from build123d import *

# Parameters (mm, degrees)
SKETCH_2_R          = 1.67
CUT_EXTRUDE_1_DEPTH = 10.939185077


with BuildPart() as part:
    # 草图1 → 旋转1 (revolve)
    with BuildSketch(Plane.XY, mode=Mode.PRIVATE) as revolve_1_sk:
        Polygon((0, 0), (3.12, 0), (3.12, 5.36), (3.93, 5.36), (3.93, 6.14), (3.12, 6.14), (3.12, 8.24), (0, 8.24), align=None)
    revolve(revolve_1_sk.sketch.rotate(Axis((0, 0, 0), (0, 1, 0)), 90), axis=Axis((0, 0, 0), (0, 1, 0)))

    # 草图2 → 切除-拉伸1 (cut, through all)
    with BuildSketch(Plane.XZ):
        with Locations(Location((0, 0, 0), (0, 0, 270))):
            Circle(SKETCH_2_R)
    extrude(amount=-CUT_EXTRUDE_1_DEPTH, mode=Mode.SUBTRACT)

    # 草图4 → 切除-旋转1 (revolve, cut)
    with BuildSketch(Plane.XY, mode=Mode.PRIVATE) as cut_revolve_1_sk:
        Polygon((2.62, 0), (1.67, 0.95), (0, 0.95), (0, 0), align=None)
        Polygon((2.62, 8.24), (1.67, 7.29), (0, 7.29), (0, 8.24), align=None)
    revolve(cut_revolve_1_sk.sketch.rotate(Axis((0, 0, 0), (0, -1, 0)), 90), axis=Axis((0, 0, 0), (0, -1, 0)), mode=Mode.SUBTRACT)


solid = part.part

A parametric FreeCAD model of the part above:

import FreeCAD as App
import Part
import Sketcher

doc = App.newDocument("Part")
body = doc.addObject("PartDesign::Body", "Body")

# Sketch on XY plane
sketch1 = body.newObject("Sketcher::SketchObject", "Sketch")
sketch1.AttachmentSupport = (doc.getObject("XY_Plane"), [""])
sketch1.MapMode = "FlatFace"
sketch1.addGeometry(Part.LineSegment(App.Vector(0, 0, 0), App.Vector(3.1, 0, 0)), False)
sketch1.addGeometry(Part.LineSegment(App.Vector(3.1, 0, 0), App.Vector(3.1, 5.4, 0)), False)
sketch1.addGeometry(Part.LineSegment(App.Vector(3.1, 5.4, 0), App.Vector(3.9, 5.4, 0)), False)
sketch1.addGeometry(Part.LineSegment(App.Vector(3.9, 5.4, 0), App.Vector(3.9, 6.1, 0)), False)
sketch1.addGeometry(Part.LineSegment(App.Vector(3.9, 6.1, 0), App.Vector(3.1, 6.1, 0)), False)
sketch1.addGeometry(Part.LineSegment(App.Vector(3.1, 6.1, 0), App.Vector(3.1, 8.2, 0)), False)
sketch1.addGeometry(Part.LineSegment(App.Vector(3.1, 8.2, 0), App.Vector(0, 8.2, 0)), False)
sketch1.addGeometry(Part.LineSegment(App.Vector(0, 8.2, 0), App.Vector(0, 0, 0)), False)
sketch1.addConstraint(Sketcher.Constraint("Coincident", 0, 2, 1, 1))
sketch1.addConstraint(Sketcher.Constraint("Coincident", 1, 2, 2, 1))
sketch1.addConstraint(Sketcher.Constraint("Coincident", 2, 2, 3, 1))
sketch1.addConstraint(Sketcher.Constraint("Coincident", 3, 2, 4, 1))
sketch1.addConstraint(Sketcher.Constraint("Coincident", 4, 2, 5, 1))
sketch1.addConstraint(Sketcher.Constraint("Coincident", 5, 2, 6, 1))
sketch1.addConstraint(Sketcher.Constraint("Coincident", 6, 2, 7, 1))
sketch1.addConstraint(Sketcher.Constraint("Coincident", 7, 2, 0, 1))
sketch1.addConstraint(Sketcher.Constraint("Horizontal", 0))
sketch1.addConstraint(Sketcher.Constraint("Vertical", 1))
sketch1.addConstraint(Sketcher.Constraint("Horizontal", 2))
sketch1.addConstraint(Sketcher.Constraint("Vertical", 3))
sketch1.addConstraint(Sketcher.Constraint("Horizontal", 4))
sketch1.addConstraint(Sketcher.Constraint("Vertical", 5))
sketch1.addConstraint(Sketcher.Constraint("Horizontal", 6))
sketch1.addConstraint(Sketcher.Constraint("Vertical", 7))
sketch1.addConstraint(Sketcher.Constraint("Coincident", 7, 2, -1, 1))
sketch1.addConstraint(Sketcher.Constraint("Vertical", 1, 2, 4, 2))
sketch1.addConstraint(Sketcher.Constraint("DistanceY", 5, 1, 5, 2, 2.1))
sketch1.addConstraint(Sketcher.Constraint("DistanceX", 0, 1, 0, 2, 3.12))
sketch1.addConstraint(Sketcher.Constraint("DistanceX", 2, 1, 2, 2, 0.81))
sketch1.addConstraint(Sketcher.Constraint("DistanceY", 1, 1, 1, 2, 5.36))
sketch1.addConstraint(Sketcher.Constraint("DistanceY", 3, 1, 3, 2, 0.78))
revolution = body.newObject("PartDesign::Revolution", "Revolution")
revolution.Profile = sketch1
revolution.ReferenceAxis = (sketch1, ["V_Axis"])
revolution.Angle = 360

# Sketch on XZ plane
sketch2 = body.newObject("Sketcher::SketchObject", "Sketch001")
sketch2.AttachmentSupport = (doc.getObject("XZ_Plane"), [""])
sketch2.MapMode = "FlatFace"
sketch2.addGeometry(Part.Circle(App.Vector(0, 0, 0), App.Vector(0, 0, 1), 1.7), False)
sketch2.addConstraint(Sketcher.Constraint("Coincident", 0, 3, -1, 1))
sketch2.addConstraint(Sketcher.Constraint("Diameter", 0, 3.34))
pocket1 = body.newObject("PartDesign::Pocket", "Pocket")
pocket1.Profile = sketch2
pocket1.Type = "ThroughAll"

# Sketch on XY plane
sketch3 = body.newObject("Sketcher::SketchObject", "Sketch002")
sketch3.AttachmentSupport = (doc.getObject("XY_Plane"), [""])
sketch3.MapMode = "FlatFace"
sketch3.addGeometry(Part.LineSegment(App.Vector(2.6, 0, 0), App.Vector(1.7, 0.9, 0)), False)
sketch3.addGeometry(Part.LineSegment(App.Vector(1.7, 0.9, 0), App.Vector(0, 0.9, 0)), False)
sketch3.addGeometry(Part.LineSegment(App.Vector(0, 0.9, 0), App.Vector(0, 0, 0)), False)
sketch3.addGeometry(Part.LineSegment(App.Vector(0, 0, 0), App.Vector(2.6, 0, 0)), False)
sketch3.addGeometry(Part.LineSegment(App.Vector(1.7, 7.3, 0), App.Vector(2.6, 8.2, 0)), False)
sketch3.addGeometry(Part.LineSegment(App.Vector(2.6, 8.2, 0), App.Vector(0, 8.2, 0)), False)
sketch3.addGeometry(Part.LineSegment(App.Vector(0, 8.2, 0), App.Vector(0, 7.3, 0)), False)
sketch3.addGeometry(Part.LineSegment(App.Vector(0, 7.3, 0), App.Vector(1.7, 7.3, 0)), False)
sketch3.addConstraint(Sketcher.Constraint("Coincident", 0, 2, 1, 1))
sketch3.addConstraint(Sketcher.Constraint("Coincident", 1, 2, 2, 1))
sketch3.addConstraint(Sketcher.Constraint("Coincident", 2, 2, 3, 1))
sketch3.addConstraint(Sketcher.Constraint("Coincident", 3, 2, 0, 1))
sketch3.addConstraint(Sketcher.Constraint("Coincident", 4, 2, 5, 1))
sketch3.addConstraint(Sketcher.Constraint("Coincident", 5, 2, 6, 1))
sketch3.addConstraint(Sketcher.Constraint("Coincident", 6, 2, 7, 1))
sketch3.addConstraint(Sketcher.Constraint("Coincident", 7, 2, 4, 1))
sketch3.addConstraint(Sketcher.Constraint("Horizontal", 1))
sketch3.addConstraint(Sketcher.Constraint("Vertical", 2))
sketch3.addConstraint(Sketcher.Constraint("Horizontal", 3))
sketch3.addConstraint(Sketcher.Constraint("Horizontal", 5))
sketch3.addConstraint(Sketcher.Constraint("Vertical", 6))
sketch3.addConstraint(Sketcher.Constraint("Horizontal", 7))
sketch3.addConstraint(Sketcher.Constraint("Coincident", 2, 2, -1, 1))
sketch3.addConstraint(Sketcher.Constraint("PointOnObject", 5, 2, -2))
sketch3.addConstraint(Sketcher.Constraint("Perpendicular", 0, 4))
sketch3.addConstraint(Sketcher.Constraint("Vertical", 3, 2, 4, 2))
sketch3.addConstraint(Sketcher.Constraint("Vertical", 0, 2, 7, 2))
sketch3.addConstraint(Sketcher.Constraint("Equal", 2, 6))
sketch3.addConstraint(Sketcher.Constraint("DistanceX", 1, 2, 1, 1, 1.67))
sketch3.addConstraint(Sketcher.Constraint("DistanceX", 3, 1, 3, 2, 2.62))
sketch3.addConstraint(Sketcher.Constraint("DistanceY", -1, 1, 4, 2, 8.24))
groove = body.newObject("PartDesign::Groove", "Groove")
groove.Profile = sketch3
groove.ReferenceAxis = (sketch3, ["V_Axis"])
groove.Angle = 360

doc.recompute()
